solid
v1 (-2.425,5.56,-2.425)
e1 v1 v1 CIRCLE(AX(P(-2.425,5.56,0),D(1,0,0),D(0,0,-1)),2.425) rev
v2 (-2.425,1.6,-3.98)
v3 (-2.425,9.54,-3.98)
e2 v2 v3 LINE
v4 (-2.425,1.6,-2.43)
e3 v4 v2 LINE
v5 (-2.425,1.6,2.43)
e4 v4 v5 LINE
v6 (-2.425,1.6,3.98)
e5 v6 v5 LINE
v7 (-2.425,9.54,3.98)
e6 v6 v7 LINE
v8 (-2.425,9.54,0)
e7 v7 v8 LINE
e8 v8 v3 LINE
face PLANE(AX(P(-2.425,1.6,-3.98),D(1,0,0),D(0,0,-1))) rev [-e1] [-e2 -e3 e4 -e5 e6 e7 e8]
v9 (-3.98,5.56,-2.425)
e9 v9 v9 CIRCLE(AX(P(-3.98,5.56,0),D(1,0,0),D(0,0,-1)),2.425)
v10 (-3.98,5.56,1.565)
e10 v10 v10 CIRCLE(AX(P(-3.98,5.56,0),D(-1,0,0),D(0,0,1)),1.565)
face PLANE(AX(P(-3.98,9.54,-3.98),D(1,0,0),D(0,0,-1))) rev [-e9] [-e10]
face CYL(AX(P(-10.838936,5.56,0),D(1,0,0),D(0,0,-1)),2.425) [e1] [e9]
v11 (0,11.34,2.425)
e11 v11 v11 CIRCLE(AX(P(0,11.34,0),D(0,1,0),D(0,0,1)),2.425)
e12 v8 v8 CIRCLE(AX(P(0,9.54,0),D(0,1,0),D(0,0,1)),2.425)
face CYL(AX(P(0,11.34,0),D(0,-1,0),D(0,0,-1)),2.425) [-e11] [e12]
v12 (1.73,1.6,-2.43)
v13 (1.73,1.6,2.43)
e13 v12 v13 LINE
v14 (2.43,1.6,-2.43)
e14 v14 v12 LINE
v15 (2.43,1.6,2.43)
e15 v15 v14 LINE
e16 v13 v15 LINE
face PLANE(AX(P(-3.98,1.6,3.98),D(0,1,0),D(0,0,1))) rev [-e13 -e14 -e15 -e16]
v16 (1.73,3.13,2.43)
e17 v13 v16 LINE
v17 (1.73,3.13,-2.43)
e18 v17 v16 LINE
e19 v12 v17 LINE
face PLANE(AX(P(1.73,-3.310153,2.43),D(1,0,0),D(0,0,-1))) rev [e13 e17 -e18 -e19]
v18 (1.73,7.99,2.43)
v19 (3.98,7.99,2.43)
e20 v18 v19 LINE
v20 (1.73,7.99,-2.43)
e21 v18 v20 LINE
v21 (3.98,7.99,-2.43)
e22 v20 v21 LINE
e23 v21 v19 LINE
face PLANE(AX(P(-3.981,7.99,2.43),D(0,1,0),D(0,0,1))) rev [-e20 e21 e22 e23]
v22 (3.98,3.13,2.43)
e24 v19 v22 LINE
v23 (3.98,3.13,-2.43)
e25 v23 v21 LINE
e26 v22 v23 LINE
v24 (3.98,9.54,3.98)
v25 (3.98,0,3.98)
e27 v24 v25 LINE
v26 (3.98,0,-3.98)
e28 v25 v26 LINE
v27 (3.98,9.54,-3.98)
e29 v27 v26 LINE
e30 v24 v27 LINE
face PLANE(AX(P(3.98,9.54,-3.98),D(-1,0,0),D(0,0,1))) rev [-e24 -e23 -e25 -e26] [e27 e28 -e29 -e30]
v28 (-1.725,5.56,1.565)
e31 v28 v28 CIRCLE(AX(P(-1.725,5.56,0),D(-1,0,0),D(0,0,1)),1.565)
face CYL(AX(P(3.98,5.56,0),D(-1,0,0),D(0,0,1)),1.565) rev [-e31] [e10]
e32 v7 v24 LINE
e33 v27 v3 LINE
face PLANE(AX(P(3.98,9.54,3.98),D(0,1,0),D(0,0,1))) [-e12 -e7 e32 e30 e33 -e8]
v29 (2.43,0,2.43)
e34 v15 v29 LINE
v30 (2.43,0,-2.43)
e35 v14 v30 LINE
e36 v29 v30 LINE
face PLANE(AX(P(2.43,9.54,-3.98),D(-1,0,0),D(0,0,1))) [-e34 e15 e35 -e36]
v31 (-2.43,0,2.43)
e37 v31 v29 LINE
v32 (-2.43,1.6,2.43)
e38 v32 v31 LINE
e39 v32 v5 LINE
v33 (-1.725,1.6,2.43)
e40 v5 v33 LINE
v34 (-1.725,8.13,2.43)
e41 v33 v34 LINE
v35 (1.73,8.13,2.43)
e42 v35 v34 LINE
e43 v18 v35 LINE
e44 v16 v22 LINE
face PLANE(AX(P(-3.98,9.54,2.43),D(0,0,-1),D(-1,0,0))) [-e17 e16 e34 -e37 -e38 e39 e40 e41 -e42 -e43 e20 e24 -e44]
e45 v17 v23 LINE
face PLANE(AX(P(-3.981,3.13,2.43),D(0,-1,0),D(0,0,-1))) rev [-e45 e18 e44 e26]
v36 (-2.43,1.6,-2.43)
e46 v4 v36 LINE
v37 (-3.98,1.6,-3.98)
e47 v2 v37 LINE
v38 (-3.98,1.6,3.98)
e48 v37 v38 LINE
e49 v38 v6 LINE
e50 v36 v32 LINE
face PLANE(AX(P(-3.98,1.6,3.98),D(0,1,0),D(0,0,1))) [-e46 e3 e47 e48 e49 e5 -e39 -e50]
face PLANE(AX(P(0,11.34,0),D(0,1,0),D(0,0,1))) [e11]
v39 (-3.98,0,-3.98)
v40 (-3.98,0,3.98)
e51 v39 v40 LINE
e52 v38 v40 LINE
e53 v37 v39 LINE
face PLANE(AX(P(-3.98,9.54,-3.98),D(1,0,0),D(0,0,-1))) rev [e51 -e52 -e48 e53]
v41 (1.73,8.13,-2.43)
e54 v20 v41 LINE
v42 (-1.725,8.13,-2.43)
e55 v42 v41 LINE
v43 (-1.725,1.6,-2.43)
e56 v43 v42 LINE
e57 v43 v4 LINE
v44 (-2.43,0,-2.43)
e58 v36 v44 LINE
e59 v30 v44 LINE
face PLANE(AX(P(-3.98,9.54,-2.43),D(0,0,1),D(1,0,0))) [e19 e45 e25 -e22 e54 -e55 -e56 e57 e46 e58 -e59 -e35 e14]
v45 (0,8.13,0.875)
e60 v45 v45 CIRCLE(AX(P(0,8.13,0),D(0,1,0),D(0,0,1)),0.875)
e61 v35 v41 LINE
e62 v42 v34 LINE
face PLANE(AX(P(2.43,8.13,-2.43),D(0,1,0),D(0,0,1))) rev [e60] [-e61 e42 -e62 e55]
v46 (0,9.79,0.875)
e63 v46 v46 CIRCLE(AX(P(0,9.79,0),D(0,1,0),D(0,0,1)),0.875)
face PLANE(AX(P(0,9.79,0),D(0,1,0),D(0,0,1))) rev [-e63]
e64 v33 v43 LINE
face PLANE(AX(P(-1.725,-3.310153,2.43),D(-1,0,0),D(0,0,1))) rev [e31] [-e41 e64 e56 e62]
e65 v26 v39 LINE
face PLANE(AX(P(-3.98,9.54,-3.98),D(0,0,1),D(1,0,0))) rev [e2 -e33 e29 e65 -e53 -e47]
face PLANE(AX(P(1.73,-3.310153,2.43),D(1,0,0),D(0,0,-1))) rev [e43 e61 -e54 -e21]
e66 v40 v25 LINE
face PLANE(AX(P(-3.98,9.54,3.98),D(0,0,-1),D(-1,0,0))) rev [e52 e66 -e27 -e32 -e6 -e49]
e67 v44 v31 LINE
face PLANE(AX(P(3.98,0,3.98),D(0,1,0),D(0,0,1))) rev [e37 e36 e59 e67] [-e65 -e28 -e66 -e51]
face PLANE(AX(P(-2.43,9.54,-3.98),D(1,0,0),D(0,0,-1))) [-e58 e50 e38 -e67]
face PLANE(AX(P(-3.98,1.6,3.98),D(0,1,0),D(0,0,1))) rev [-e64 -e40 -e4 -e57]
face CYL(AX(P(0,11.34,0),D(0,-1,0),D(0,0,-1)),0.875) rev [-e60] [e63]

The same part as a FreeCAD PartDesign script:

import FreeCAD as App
import Part
import Sketcher
from FreeCAD import Vector


def faces_at(feature, points):
    """Names of the faces that lie closest to the given points."""
    faces = feature.Shape.Faces
    near = lambda p: min(range(len(faces)), key=lambda i: faces[i].distToShape(Part.Vertex(*p))[0])
    return sorted({f"Face{near(p) + 1}" for p in points})

doc = App.newDocument("Part")
body = doc.addObject("PartDesign::Body", "Body")

# Sketch on XZ plane
sketch1 = body.newObject("Sketcher::SketchObject", "Sketch")
sketch1.AttachmentSupport = (doc.getObject("XZ_Plane"), [""])
sketch1.MapMode = "FlatFace"
sketch1.addGeometry(Part.LineSegment(Vector(-4, -4, 0), Vector(-4, 4, 0)), False)
sketch1.addGeometry(Part.LineSegment(Vector(-4, 4, 0), Vector(4, 4, 0)), False)
sketch1.addGeometry(Part.LineSegment(Vector(4, 4, 0), Vector(4, -4, 0)), False)
sketch1.addGeometry(Part.LineSegment(Vector(4, -4, 0), Vector(-4, -4, 0)), False)
sketch1.addConstraint(Sketcher.Constraint("Coincident", 0, 2, 1, 1))
sketch1.addConstraint(Sketcher.Constraint("Coincident", 1, 2, 2, 1))
sketch1.addConstraint(Sketcher.Constraint("Coincident", 2, 2, 3, 1))
sketch1.addConstraint(Sketcher.Constraint("Coincident", 3, 2, 0, 1))
sketch1.addConstraint(Sketcher.Constraint("Vertical", 0))
sketch1.addConstraint(Sketcher.Constraint("Horizontal", 1))
sketch1.addConstraint(Sketcher.Constraint("Vertical", 2))
sketch1.addConstraint(Sketcher.Constraint("Horizontal", 3))
sketch1.addConstraint(Sketcher.Constraint("Symmetric", 0, 2, 2, 2, -1, 1))
sketch1.addConstraint(Sketcher.Constraint("Equal", 3, 0))
sketch1.addConstraint(Sketcher.Constraint("DistanceX", 1, 1, 1, 2, 7.96))
pad1 = body.newObject("PartDesign::Pad", "Pad")
pad1.Profile = sketch1
pad1.Length = 9.54
pad1.Reversed = True

# Sketch on XZ plane
sketch2 = body.newObject("Sketcher::SketchObject", "Sketch001")
sketch2.AttachmentSupport = (doc.getObject("XZ_Plane"), [""])
sketch2.MapMode = "FlatFace"
sketch2.AttachmentOffset = App.Placement(Vector(0, 0, -9.54), App.Rotation())
sketch2.addGeometry(Part.Circle(Vector(0, 0, 0), Vector(0, 0, 1), 2.4), False)
sketch2.addConstraint(Sketcher.Constraint("Coincident", 0, 3, -1, 1))
sketch2.addConstraint(Sketcher.Constraint("Diameter", 0, 4.85))
pad2 = body.newObject("PartDesign::Pad", "Pad001")
pad2.Profile = sketch2
pad2.Length = 1.8
pad2.Reversed = True
doc.recompute()

thickness = body.newObject("PartDesign::Thickness", "Thickness")
thickness.Base = (pad2, faces_at(pad2, [(0, 0, 0)]))
thickness.Value = 1.55
thickness.Reversed = True
thickness.Join = "Intersection"

# Sketch on XZ plane
sketch3 = body.newObject("Sketcher::SketchObject", "Sketch002")
sketch3.AttachmentSupport = (doc.getObject("XZ_Plane"), [""])
sketch3.MapMode = "FlatFace"
sketch3.AttachmentOffset = App.Placement(Vector(0, 0, -7.99), App.Rotation())
sketch3.addGeometry(Part.LineSegment(Vector(-2.4, 2.4, 0), Vector(-2.4, -2.4, 0)), False)
sketch3.addGeometry(Part.LineSegment(Vector(-2.4, -2.4, 0), Vector(2.4, -2.4, 0)), False)
sketch3.addGeometry(Part.LineSegment(Vector(2.4, -2.4, 0), Vector(2.4, 2.4, 0)), False)
sketch3.addGeometry(Part.LineSegment(Vector(2.4, 2.4, 0), Vector(-2.4, 2.4, 0)), False)
sketch3.addConstraint(Sketcher.Constraint("Coincident", 0, 2, 1, 1))
sketch3.addConstraint(Sketcher.Constraint("Coincident", 1, 2, 2, 1))
sketch3.addConstraint(Sketcher.Constraint("Coincident", 2, 2, 3, 1))
sketch3.addConstraint(Sketcher.Constraint("Coincident", 3, 2, 0, 1))
sketch3.addConstraint(Sketcher.Constraint("Vertical", 0))
sketch3.addConstraint(Sketcher.Constraint("Horizontal", 1))
sketch3.addConstraint(Sketcher.Constraint("Vertical", 2))
sketch3.addConstraint(Sketcher.Constraint("Horizontal", 3))
sketch3.addConstraint(Sketcher.Constraint("Symmetric", 0, 2, 2, 2, -1, 1))
sketch3.addConstraint(Sketcher.Constraint("Equal", 3, 0))
sketch3.addConstraint(Sketcher.Constraint("DistanceX", 1, 1, 1, 2, 4.86))
pocket1 = body.newObject("PartDesign::Pocket", "Pocket")
pocket1.Profile = sketch3
pocket1.Length = 0.14

# Sketch on XZ plane
sketch4 = body.newObject("Sketcher::SketchObject", "Sketch003")
sketch4.AttachmentSupport = (doc.getObject("XZ_Plane"), [""])
sketch4.MapMode = "FlatFace"
sketch4.AttachmentOffset = App.Placement(Vector(0, 0, -9.54), App.Rotation())
sketch4.addGeometry(Part.LineSegment(Vector(-4, -4, 0), Vector(-4, 4, 0)), False)
sketch4.addGeometry(Part.LineSegment(Vector(-4, 4, 0), Vector(-2.4, 4, 0)), False)
sketch4.addGeometry(Part.LineSegment(Vector(-2.4, 4, 0), Vector(-2.4, -4, 0)), False)
sketch4.addGeometry(Part.LineSegment(Vector(-2.4, -4, 0), Vector(-4, -4, 0)), False)
sketch4.addConstraint(Sketcher.Constraint("Coincident", 0, 2, 1, 1))
sketch4.addConstraint(Sketcher.Constraint("Coincident", 1, 2, 2, 1))
sketch4.addConstraint(Sketcher.Constraint("Coincident", 2, 2, 3, 1))
sketch4.addConstraint(Sketcher.Constraint("Coincident", 3, 2, 0, 1))
sketch4.addConstraint(Sketcher.Constraint("Vertical", 0))
sketch4.addConstraint(Sketcher.Constraint("Horizontal", 1))
sketch4.addConstraint(Sketcher.Constraint("Vertical", 2))
sketch4.addConstraint(Sketcher.Constraint("Horizontal", 3))
sketch4.addConstraint(Sketcher.Constraint("DistanceY", 0, 1, 0, 2, 7.96))
sketch4.addConstraint(Sketcher.Constraint("DistanceX", 1, 1, 1, 2, 1.555))
sketch4.addConstraint(Sketcher.Constraint("DistanceX", 0, 2, -1, 1, 3.98))
sketch4.addConstraint(Sketcher.Constraint("DistanceY", -1, 1, 0, 2, 3.98))
pocket2 = body.newObject("PartDesign::Pocket", "Pocket001")
pocket2.Profile = sketch4
pocket2.Length = 7.94
pocket2.Reversed = True

# Sketch on XZ plane
sketch5 = body.newObject("Sketcher::SketchObject", "Sketch004")
sketch5.AttachmentSupport = (doc.getObject("XZ_Plane"), [""])
sketch5.MapMode = "FlatFace"
sketch5.AttachmentOffset = App.Placement(Vector(0, 0, -8.13), App.Rotation())
sketch5.addGeometry(Part.LineSegment(Vector(-2.4, 2.4, 0), Vector(-2.4, -2.4, 0)), False)
sketch5.addGeometry(Part.LineSegment(Vector(-2.4, -2.4, 0), Vector(-1.7, -2.4, 0)), False)
sketch5.addGeometry(Part.LineSegment(Vector(-1.7, -2.4, 0), Vector(-1.7, 2.4, 0)), False)
sketch5.addGeometry(Part.LineSegment(Vector(-1.7, 2.4, 0), Vector(-2.4, 2.4, 0)), False)
sketch5.addGeometry(Part.LineSegment(Vector(1.7, 2.4, 0), Vector(1.7, -2.4, 0)), False)
sketch5.addGeometry(Part.LineSegment(Vector(1.7, -2.4, 0), Vector(2.4, -2.4, 0)), False)
sketch5.addGeometry(Part.LineSegment(Vector(2.4, -2.4, 0), Vector(2.4, 2.4, 0)), False)
sketch5.addGeometry(Part.LineSegment(Vector(2.4, 2.4, 0), Vector(1.7, 2.4, 0)), False)
sketch5.addConstraint(Sketcher.Constraint("Coincident", 0, 2, 1, 1))
sketch5.addConstraint(Sketcher.Constraint("Coincident", 1, 2, 2, 1))
sketch5.addConstraint(Sketcher.Constraint("Coincident", 2, 2, 3, 1))
sketch5.addConstraint(Sketcher.Constraint("Coincident", 3, 2, 0, 1))
sketch5.addConstraint(Sketcher.Constraint("Coincident", 4, 2, 5, 1))
sketch5.addConstraint(Sketcher.Constraint("Coincident", 5, 2, 6, 1))
sketch5.addConstraint(Sketcher.Constraint("Coincident", 6, 2, 7, 1))
sketch5.addConstraint(Sketcher.Constraint("Coincident", 7, 2, 4, 1))
sketch5.addConstraint(Sketcher.Constraint("Vertical", 0))
sketch5.addConstraint(Sketcher.Constraint("Horizontal", 1))
sketch5.addConstraint(Sketcher.Constraint("Vertical", 2))
sketch5.addConstraint(Sketcher.Constraint("Horizontal", 3))
sketch5.addConstraint(Sketcher.Constraint("Vertical", 4))
sketch5.addConstraint(Sketcher.Constraint("Horizontal", 5))
sketch5.addConstraint(Sketcher.Constraint("Vertical", 6))
sketch5.addConstraint(Sketcher.Constraint("Horizontal", 7))
sketch5.addConstraint(Sketcher.Constraint("Horizontal", 1, 2, 4, 2))
sketch5.addConstraint(Sketcher.Constraint("Horizontal", 3, 2, 6, 2))
sketch5.addConstraint(Sketcher.Constraint("Equal", 3, 5))
sketch5.addConstraint(Sketcher.Constraint("DistanceX", 1, 1, 1, 2, 0.7))
sketch5.addConstraint(Sketcher.Constraint("DistanceY", 0, 2, 0, 1, 4.86))
sketch5.addConstraint(Sketcher.Constraint("DistanceY", 0, 2, -1, 1, 2.43))
sketch5.addConstraint(Sketcher.Constraint("DistanceX", -1, 1, 4, 2, 1.73))
sketch5.addConstraint(Sketcher.Constraint("DistanceX", 0, 2, -1, 1, 2.425))
pad3 = body.newObject("PartDesign::Pad", "Pad002")
pad3.Profile = sketch5
pad3.Length = 6.53

# Sketch on YZ plane
sketch6 = body.newObject("Sketcher::SketchObject", "Sketch005")
sketch6.AttachmentSupport = (doc.getObject("YZ_Plane"), [""])
sketch6.MapMode = "FlatFace"
sketch6.AttachmentOffset = App.Placement(Vector(0, 0, 3.98), App.Rotation())
sketch6.addGeometry(Part.LineSegment(Vector(8, 2.4, 0), Vector(3.1, 2.4, 0)), False)
sketch6.addGeometry(Part.LineSegment(Vector(3.1, 2.4, 0), Vector(3.1, -2.4, 0)), False)
sketch6.addGeometry(Part.LineSegment(Vector(3.1, -2.4, 0), Vector(8, -2.4, 0)), False)
sketch6.addGeometry(Part.LineSegment(Vector(8, -2.4, 0), Vector(8, 2.4, 0)), False)
sketch6.addConstraint(Sketcher.Constraint("Coincident", 0, 2, 1, 1))
sketch6.addConstraint(Sketcher.Constraint("Coincident", 1, 2, 2, 1))
sketch6.addConstraint(Sketcher.Constraint("Coincident", 2, 2, 3, 1))
sketch6.addConstraint(Sketcher.Constraint("Coincident", 3, 2, 0, 1))
sketch6.addConstraint(Sketcher.Constraint("Horizontal", 0))
sketch6.addConstraint(Sketcher.Constraint("Vertical", 1))
sketch6.addConstraint(Sketcher.Constraint("Horizontal", 2))
sketch6.addConstraint(Sketcher.Constraint("Vertical", 3))
sketch6.addConstraint(Sketcher.Constraint("Equal", 2, 1))
sketch6.addConstraint(Sketcher.Constraint("DistanceX", 0, 2, 0, 1, 4.86))
sketch6.addConstraint(Sketcher.Constraint("DistanceX", -1, 1, 0, 2, 3.13))
sketch6.addConstraint(Sketcher.Constraint("DistanceY", -1, 1, 0, 2, 2.43))
pocket3 = body.newObject("PartDesign::Pocket", "Pocket002")
pocket3.Profile = sketch6
pocket3.Type = "UpToFirst"

# Sketch on YZ plane
sketch7 = body.newObject("Sketcher::SketchObject", "Sketch006")
sketch7.AttachmentSupport = (doc.getObject("YZ_Plane"), [""])
sketch7.MapMode = "FlatFace"
sketch7.AttachmentOffset = App.Placement(Vector(0, 0, -2.425), App.Rotation())
sketch7.addGeometry(Part.Circle(Vector(5.6, 0, 0), Vector(0, 0, 1), 2.4), False)
sketch7.addConstraint(Sketcher.Constraint("PointOnObject", 0, 3, -1))
sketch7.addConstraint(Sketcher.Constraint("Diameter", 0, 4.85))
sketch7.addConstraint(Sketcher.Constraint("DistanceX", -1, 1, 0, 3, 5.56))
pad4 = body.newObject("PartDesign::Pad", "Pad003")
pad4.Profile = sketch7
pad4.Length = 1.555
pad4.Reversed = True

# Sketch on YZ plane
sketch8 = body.newObject("Sketcher::SketchObject", "Sketch007")
sketch8.AttachmentSupport = (doc.getObject("YZ_Plane"), [""])
sketch8.MapMode = "FlatFace"
sketch8.AttachmentOffset = App.Placement(Vector(0, 0, -3.98), App.Rotation())
sketch8.addGeometry(Part.Circle(Vector(5.6, 0, 0), Vector(0, 0, 1), 1.6), False)
sketch8.addConstraint(Sketcher.Constraint("PointOnObject", 0, 3, -1))
sketch8.addConstraint(Sketcher.Constraint("Diameter", 0, 3.13))
sketch8.addConstraint(Sketcher.Constraint("DistanceX", -1, 1, 0, 3, 5.56))
pocket4 = body.newObject("PartDesign::Pocket", "Pocket003")
pocket4.Profile = sketch8
pocket4.Type = "ThroughAll"
pocket4.Reversed = True

doc.recompute()
